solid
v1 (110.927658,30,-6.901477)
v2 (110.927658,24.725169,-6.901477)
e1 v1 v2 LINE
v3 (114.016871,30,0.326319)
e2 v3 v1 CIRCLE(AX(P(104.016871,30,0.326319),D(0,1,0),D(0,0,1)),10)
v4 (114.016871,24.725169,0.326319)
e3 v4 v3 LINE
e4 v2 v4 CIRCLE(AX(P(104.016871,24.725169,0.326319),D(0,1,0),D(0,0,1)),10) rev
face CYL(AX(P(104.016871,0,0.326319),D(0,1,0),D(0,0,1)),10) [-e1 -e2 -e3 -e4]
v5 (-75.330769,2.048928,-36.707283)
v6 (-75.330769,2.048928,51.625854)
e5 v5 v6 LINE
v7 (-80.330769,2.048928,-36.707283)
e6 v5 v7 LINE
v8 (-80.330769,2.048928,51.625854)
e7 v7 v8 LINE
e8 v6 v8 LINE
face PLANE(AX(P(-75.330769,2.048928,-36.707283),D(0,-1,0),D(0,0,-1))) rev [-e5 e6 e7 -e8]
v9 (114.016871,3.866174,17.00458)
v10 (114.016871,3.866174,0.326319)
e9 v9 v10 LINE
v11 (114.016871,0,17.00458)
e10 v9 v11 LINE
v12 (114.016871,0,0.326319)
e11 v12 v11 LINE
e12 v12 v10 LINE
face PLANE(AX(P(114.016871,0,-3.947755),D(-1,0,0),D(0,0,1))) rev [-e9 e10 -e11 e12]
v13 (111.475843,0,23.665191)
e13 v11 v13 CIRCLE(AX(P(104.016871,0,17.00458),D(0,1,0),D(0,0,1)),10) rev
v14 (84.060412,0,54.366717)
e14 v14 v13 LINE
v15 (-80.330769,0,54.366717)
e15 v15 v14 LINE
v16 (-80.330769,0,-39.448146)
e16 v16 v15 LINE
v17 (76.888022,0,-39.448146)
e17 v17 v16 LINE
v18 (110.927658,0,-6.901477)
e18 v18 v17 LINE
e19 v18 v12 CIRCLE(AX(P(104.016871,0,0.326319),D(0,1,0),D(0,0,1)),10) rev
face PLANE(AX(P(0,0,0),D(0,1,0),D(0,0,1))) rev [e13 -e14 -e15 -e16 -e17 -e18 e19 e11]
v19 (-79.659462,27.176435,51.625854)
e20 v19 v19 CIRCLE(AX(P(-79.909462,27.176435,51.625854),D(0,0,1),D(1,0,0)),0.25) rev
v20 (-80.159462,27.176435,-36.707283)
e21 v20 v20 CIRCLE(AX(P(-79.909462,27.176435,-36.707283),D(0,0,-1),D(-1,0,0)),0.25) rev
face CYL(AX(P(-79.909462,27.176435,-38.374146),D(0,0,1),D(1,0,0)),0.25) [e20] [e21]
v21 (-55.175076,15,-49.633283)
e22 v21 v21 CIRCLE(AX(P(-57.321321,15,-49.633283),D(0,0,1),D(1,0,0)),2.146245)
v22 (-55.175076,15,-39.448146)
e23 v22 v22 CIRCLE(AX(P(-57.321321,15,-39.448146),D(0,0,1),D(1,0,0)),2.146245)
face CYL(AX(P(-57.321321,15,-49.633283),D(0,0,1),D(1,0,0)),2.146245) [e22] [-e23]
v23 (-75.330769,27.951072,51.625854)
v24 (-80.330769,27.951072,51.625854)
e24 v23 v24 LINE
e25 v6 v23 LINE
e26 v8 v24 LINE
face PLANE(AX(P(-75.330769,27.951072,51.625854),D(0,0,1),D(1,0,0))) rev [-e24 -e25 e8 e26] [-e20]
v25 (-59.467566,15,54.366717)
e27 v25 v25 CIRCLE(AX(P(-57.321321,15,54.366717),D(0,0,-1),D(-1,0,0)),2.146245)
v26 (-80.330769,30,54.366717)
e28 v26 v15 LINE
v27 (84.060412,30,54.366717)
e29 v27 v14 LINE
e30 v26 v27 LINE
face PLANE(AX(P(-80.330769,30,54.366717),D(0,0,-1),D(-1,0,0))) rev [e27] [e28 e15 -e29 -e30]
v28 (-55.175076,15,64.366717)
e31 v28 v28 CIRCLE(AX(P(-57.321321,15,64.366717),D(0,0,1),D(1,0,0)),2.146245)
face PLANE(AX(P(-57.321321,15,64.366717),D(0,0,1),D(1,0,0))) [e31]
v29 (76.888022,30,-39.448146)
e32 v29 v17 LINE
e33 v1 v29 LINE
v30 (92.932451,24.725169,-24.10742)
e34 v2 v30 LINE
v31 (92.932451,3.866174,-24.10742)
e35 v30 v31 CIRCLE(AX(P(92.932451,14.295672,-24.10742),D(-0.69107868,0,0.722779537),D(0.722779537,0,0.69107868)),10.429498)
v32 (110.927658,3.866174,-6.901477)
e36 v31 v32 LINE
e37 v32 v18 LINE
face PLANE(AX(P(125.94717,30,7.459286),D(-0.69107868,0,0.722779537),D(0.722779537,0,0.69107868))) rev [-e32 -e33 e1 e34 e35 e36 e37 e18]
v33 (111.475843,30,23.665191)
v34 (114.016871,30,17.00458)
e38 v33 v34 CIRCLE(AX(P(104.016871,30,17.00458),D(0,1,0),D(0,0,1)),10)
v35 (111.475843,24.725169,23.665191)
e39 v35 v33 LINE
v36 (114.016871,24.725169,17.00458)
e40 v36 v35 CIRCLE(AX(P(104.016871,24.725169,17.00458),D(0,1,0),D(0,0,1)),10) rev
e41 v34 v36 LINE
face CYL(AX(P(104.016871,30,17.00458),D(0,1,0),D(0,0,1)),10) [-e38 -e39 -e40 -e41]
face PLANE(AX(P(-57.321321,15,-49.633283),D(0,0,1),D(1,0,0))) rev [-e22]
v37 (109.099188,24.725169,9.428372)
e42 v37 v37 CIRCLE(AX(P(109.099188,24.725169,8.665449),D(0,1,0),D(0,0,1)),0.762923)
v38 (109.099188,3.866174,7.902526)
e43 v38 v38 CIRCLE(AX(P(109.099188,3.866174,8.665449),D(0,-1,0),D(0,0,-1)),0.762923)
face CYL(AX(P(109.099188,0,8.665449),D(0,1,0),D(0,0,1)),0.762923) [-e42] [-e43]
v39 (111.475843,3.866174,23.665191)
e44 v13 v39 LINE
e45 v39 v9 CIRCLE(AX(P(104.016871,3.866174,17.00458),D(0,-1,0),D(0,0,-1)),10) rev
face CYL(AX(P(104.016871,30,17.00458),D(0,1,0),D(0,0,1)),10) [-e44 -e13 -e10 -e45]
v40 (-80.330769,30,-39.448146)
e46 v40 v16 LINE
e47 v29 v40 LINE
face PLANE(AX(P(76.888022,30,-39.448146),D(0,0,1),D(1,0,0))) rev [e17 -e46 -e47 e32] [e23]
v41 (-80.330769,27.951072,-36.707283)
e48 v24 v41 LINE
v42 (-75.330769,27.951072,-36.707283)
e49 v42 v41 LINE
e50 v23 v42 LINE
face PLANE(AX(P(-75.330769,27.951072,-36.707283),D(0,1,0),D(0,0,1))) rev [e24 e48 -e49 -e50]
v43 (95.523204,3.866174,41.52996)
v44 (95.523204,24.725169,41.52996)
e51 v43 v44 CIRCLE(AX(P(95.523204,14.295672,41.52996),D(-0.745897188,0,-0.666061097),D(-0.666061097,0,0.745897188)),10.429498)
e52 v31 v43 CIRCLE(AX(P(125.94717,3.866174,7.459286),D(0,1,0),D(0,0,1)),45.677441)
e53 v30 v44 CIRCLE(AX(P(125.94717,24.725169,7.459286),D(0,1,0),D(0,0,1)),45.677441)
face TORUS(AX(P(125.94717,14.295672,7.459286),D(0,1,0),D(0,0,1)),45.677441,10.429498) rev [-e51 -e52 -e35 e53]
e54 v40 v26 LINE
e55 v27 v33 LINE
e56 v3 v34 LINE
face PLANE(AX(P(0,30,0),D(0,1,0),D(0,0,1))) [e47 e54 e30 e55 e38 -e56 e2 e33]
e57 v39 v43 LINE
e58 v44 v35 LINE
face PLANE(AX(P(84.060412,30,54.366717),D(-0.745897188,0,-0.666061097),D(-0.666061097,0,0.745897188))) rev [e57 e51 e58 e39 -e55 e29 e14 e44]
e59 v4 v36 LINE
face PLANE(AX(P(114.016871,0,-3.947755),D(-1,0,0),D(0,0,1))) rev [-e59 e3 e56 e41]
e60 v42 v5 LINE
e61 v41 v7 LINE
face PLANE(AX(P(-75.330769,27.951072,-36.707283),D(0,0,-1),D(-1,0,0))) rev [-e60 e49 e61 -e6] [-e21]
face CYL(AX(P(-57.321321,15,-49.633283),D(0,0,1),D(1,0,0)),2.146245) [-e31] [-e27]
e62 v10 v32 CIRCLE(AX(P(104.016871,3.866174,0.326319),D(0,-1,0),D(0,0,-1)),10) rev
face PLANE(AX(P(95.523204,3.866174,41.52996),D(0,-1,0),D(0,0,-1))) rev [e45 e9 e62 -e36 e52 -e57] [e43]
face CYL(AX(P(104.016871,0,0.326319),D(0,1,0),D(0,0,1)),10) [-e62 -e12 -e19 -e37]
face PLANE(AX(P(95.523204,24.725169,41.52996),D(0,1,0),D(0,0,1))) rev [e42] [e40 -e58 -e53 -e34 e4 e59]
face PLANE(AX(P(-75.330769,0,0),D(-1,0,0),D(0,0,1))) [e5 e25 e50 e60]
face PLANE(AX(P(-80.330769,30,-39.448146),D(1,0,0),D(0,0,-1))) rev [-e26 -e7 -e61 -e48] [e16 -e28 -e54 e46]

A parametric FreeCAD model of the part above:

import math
import FreeCAD as App
import Part
import Sketcher


def edges_at(feature, points):
    """Names of the edges that pass closest to the given points."""
    edges = feature.Shape.Edges
    near = lambda p: min(range(len(edges)), key=lambda i: edges[i].distToShape(Part.Vertex(*p))[0])
    return sorted({f"Edge{near(p) + 1}" for p in points})

doc = App.newDocument("Part")
params = doc.addObject("Spreadsheet::Sheet", "Params")
for row, (alias, value) in enumerate([
    ("pad1_length", "30 mm"),
    ("groove_angle", "360 deg"),
    ("pad2_length", "10 mm"),
    ("pad2_length2", "104 mm"),
    ("fillet_radius", "10 mm"),
    ("pad3_length", "30 mm"),
    ("pocket2_length", "5 mm"),
    ("sketch7_diameter", "0.5 mm"),
    ("pad4_length", "90 mm"),
], start=1):
    params.set(f"A{row}", alias)
    params.set(f"B{row}", "=" + value)
    params.setAlias(f"B{row}", alias)

body = doc.addObject("PartDesign::Body", "Body")

sketch1 = body.newObject("Sketcher::SketchObject", "Sketch")
sketch1.AttachmentSupport = (doc.getObject("XZ_Plane"), [""])
sketch1.MapMode = "FlatFace"
sketch1.addGeometry([
    Part.LineSegment(App.Vector(-80, -39, 0), App.Vector(-80, 54, 0)),
    Part.LineSegment(App.Vector(-80, 54, 0), App.Vector(84, 54, 0)),
    Part.LineSegment(App.Vector(84, 54, 0), App.Vector(126, 7, 0)),
    Part.LineSegment(App.Vector(126, 7, 0), App.Vector(77, -39, 0)),
    Part.LineSegment(App.Vector(77, -39, 0), App.Vector(-80, -39, 0)),
], False)
sketch1.addConstraint([
    Sketcher.Constraint("Coincident", 0, 2, 1, 1),
    Sketcher.Constraint("Coincident", 1, 2, 2, 1),
    Sketcher.Constraint("Coincident", 2, 2, 3, 1),
    Sketcher.Constraint("Coincident", 3, 2, 4, 1),
    Sketcher.Constraint("Coincident", 4, 2, 0, 1),
    Sketcher.Constraint("Vertical", 0),
    Sketcher.Constraint("Horizontal", 1),
    Sketcher.Constraint("Horizontal", 4),
    Sketcher.Constraint("DistanceX", 1, 1, 1, 2, 164.391182),
    Sketcher.Constraint("DistanceX", 4, 2, 4, 1, 157.218791),
    Sketcher.Constraint("Distance", 2, 62.887261),
    Sketcher.Constraint("DistanceY", 0, 1, 0, 2, 93.814863),
    Sketcher.Constraint("DistanceX", 0, 2, -1, 1, 80.330769),
    Sketcher.Constraint("DistanceX", -1, 1, 2, 2, 125.94717),
    Sketcher.Constraint("DistanceY", -1, 1, 0, 2, 54.366717),
])
pad1 = body.newObject("PartDesign::Pad", "Pad")
pad1.Profile = sketch1
pad1.setExpression("Length", "Params.pad1_length")
pad1.Reversed = True

sketch2 = body.newObject("Sketcher::SketchObject", "Sketch001")
sketch2.Placement = App.Placement(App.Vector(73.778168, 0, 65.881422), App.Rotation(App.Vector(0.666061097, 0, -0.745897188), App.Vector(0, 1, 0), App.Vector(0.745897188, 0, 0.666061097), "ZXY"))
sketch2.addGeometry([
    Part.LineSegment(App.Vector(67, 25, 0), App.Vector(33, 25, 0)),
    Part.ArcOfCircle(Part.Circle(App.Vector(33, 14, 0), App.Vector(0, 0, 1), 10), math.radians(90), math.radians(270)),
    Part.LineSegment(App.Vector(33, 4, 0), App.Vector(67, 4, 0)),
    Part.ArcOfCircle(Part.Circle(App.Vector(67, 14, 0), App.Vector(0, 0, 1), 10), math.radians(-90), math.radians(90)),
], False)
sketch2.addGeometry(Part.LineSegment(App.Vector(78, 25, 0), App.Vector(78, 4, 0)), True)
sketch2.addConstraint([
    Sketcher.Constraint("Tangent", 0, 2, 1, 1),
    Sketcher.Constraint("Tangent", 1, 2, 2, 1),
    Sketcher.Constraint("Tangent", 2, 2, 3, 1),
    Sketcher.Constraint("Tangent", 3, 2, 0, 1),
    Sketcher.Constraint("Horizontal", 0),
    Sketcher.Constraint("Horizontal", 2),
    Sketcher.Constraint("Vertical", 4),
    Sketcher.Constraint("Horizontal", 3, 2, 4, 1),
    Sketcher.Constraint("Horizontal", 2, 2, 4, 2),
    Sketcher.Constraint("Radius", 1, 10.429498),
    Sketcher.Constraint("DistanceX", 0, 2, 0, 1, 33.958445),
    Sketcher.Constraint("DistanceX", -1, 1, 1, 3, 32.647209),
    Sketcher.Constraint("DistanceY", -1, 1, 1, 3, 14.295672),
    Sketcher.Constraint("DistanceX", -1, 1, 4, 1, 78.32465),
])
groove = body.newObject("PartDesign::Groove", "Groove")
groove.Profile = sketch2
groove.ReferenceAxis = (sketch2, ["Axis0"])
groove.setExpression("Angle", "Params.groove_angle")

sketch3 = body.newObject("Sketcher::SketchObject", "Sketch002")
sketch3.AttachmentSupport = (doc.getObject("XY_Plane"), [""])
sketch3.MapMode = "FlatFace"
sketch3.AttachmentOffset = App.Placement(App.Vector(0, 0, 54.366717), App.Rotation())
sketch3.addGeometry(Part.Circle(App.Vector(-57.3, 15, 0), App.Vector(0, 0, 1), 2.1), False)
sketch3.addConstraint([
    Sketcher.Constraint("DistanceY", -1, 1, 0, 3, 15.0),
    Sketcher.Constraint("Diameter", 0, 4.29249),
    Sketcher.Constraint("DistanceX", 0, 3, -1, 1, 57.321321),
])
pad2 = body.newObject("PartDesign::Pad", "Pad001")
pad2.Profile = sketch3
pad2.Type = "TwoLengths"
pad2.setExpression("Length", "Params.pad2_length")
pad2.setExpression("Length2", "Params.pad2_length2")

sketch4 = body.newObject("Sketcher::SketchObject", "Sketch003")
sketch4.AttachmentSupport = (doc.getObject("XZ_Plane"), [""])
sketch4.MapMode = "FlatFace"
sketch4.AttachmentOffset = App.Placement(App.Vector(0, 0, -30), App.Rotation())
sketch4.addGeometry([
    Part.LineSegment(App.Vector(114, -4, 0), App.Vector(114, 21, 0)),
    Part.LineSegment(App.Vector(114, 21, 0), App.Vector(176, 21, 0)),
    Part.LineSegment(App.Vector(176, 21, 0), App.Vector(176, -4, 0)),
    Part.LineSegment(App.Vector(176, -4, 0), App.Vector(114, -4, 0)),
], False)
sketch4.addConstraint([
    Sketcher.Constraint("Coincident", 0, 2, 1, 1),
    Sketcher.Constraint("Coincident", 1, 2, 2, 1),
    Sketcher.Constraint("Coincident", 2, 2, 3, 1),
    Sketcher.Constraint("Coincident", 3, 2, 0, 1),
    Sketcher.Constraint("Vertical", 0),
    Sketcher.Constraint("Horizontal", 1),
    Sketcher.Constraint("Vertical", 2),
    Sketcher.Constraint("Horizontal", 3),
    Sketcher.Constraint("DistanceX", 1, 1, 1, 2, 62.472603),
    Sketcher.Constraint("DistanceY", 0, 1, 0, 2, 24.767342),
    Sketcher.Constraint("DistanceX", -1, 1, 0, 2, 114.016871),
    Sketcher.Constraint("DistanceY", -1, 1, 0, 2, 20.819587),
])
pocket1 = body.newObject("PartDesign::Pocket", "Pocket")
pocket1.Profile = sketch4
pocket1.Type = "ThroughAll"
pocket1.Reversed = True
doc.recompute()

fillet = body.newObject("PartDesign::Fillet", "Fillet")
fillet.Base = (pocket1, edges_at(pocket1, [
    (114.017, 1.933, 20.82),
    (114.017, 27.363, 20.82),
    (114.017, 1.933, -3.948),
    (114.017, 27.363, -3.948),
]))
fillet.setExpression("Radius", "Params.fillet_radius")

sketch5 = body.newObject("Sketcher::SketchObject", "Sketch004")
sketch5.AttachmentSupport = (doc.getObject("XZ_Plane"), [""])
sketch5.MapMode = "FlatFace"
sketch5.AttachmentOffset = App.Placement(App.Vector(0, 0, -30), App.Rotation())
sketch5.addGeometry(Part.Circle(App.Vector(109.1, 8.7, 0), App.Vector(0, 0, 1), 0.8), False)
sketch5.addConstraint([
    Sketcher.Constraint("Diameter", 0, 1.525846),
    Sketcher.Constraint("DistanceY", -1, 1, 0, 3, 8.665449),
    Sketcher.Constraint("DistanceX", -1, 1, 0, 3, 109.099188),
])
pad3 = body.newObject("PartDesign::Pad", "Pad002")
pad3.Profile = sketch5
pad3.setExpression("Length", "Params.pad3_length")

sketch6 = body.newObject("Sketcher::SketchObject", "Sketch005")
sketch6.AttachmentSupport = (doc.getObject("YZ_Plane"), [""])
sketch6.MapMode = "FlatFace"
sketch6.AttachmentOffset = App.Placement(App.Vector(0, 0, -80.330769), App.Rotation())
sketch6.addGeometry([
    Part.LineSegment(App.Vector(28, -37, 0), App.Vector(2, -37, 0)),
    Part.LineSegment(App.Vector(2, -37, 0), App.Vector(2, 52, 0)),
    Part.LineSegment(App.Vector(2, 52, 0), App.Vector(28, 52, 0)),
    Part.LineSegment(App.Vector(28, 52, 0), App.Vector(28, -37, 0)),
], False)
sketch6.addConstraint([
    Sketcher.Constraint("Coincident", 0, 2, 1, 1),
    Sketcher.Constraint("Coincident", 1, 2, 2, 1),
    Sketcher.Constraint("Coincident", 2, 2, 3, 1),
    Sketcher.Constraint("Coincident", 3, 2, 0, 1),
    Sketcher.Constraint("Horizontal", 0),
    Sketcher.Constraint("Vertical", 1),
    Sketcher.Constraint("Horizontal", 2),
    Sketcher.Constraint("Vertical", 3),
    Sketcher.Constraint("DistanceX", 0, 2, 0, 1, 25.902143),
    Sketcher.Constraint("DistanceY", 1, 1, 1, 2, 88.333137),
    Sketcher.Constraint("DistanceX", -1, 1, 0, 2, 2.048928),
    Sketcher.Constraint("DistanceY", 0, 2, -1, 1, 36.707283),
])
pocket2 = body.newObject("PartDesign::Pocket", "Pocket001")
pocket2.Profile = sketch6
pocket2.setExpression("Length", "Params.pocket2_length")
pocket2.Reversed = True

sketch7 = body.newObject("Sketcher::SketchObject", "Sketch006")
sketch7.AttachmentSupport = (doc.getObject("XY_Plane"), [""])
sketch7.MapMode = "FlatFace"
sketch7.AttachmentOffset = App.Placement(App.Vector(0, 0, 51.625854), App.Rotation())
sketch7.addGeometry(Part.Circle(App.Vector(-79.91, 27.18, 0), App.Vector(0, 0, 1), 0.25), False)
sketch7.addConstraint([
    Sketcher.Constraint("Diameter", 0, 0.5),
    Sketcher.Constraint("DistanceX", 0, 3, -1, 1, 79.909462),
    Sketcher.Constraint("DistanceY", -1, 1, 0, 3, 27.176435),
])
sketch7.setExpression("Constraints[0]", "Params.sketch7_diameter")
pad4 = body.newObject("PartDesign::Pad", "Pad003")
pad4.Profile = sketch7
pad4.setExpression("Length", "Params.pad4_length")
pad4.Reversed = True

doc.recompute()
